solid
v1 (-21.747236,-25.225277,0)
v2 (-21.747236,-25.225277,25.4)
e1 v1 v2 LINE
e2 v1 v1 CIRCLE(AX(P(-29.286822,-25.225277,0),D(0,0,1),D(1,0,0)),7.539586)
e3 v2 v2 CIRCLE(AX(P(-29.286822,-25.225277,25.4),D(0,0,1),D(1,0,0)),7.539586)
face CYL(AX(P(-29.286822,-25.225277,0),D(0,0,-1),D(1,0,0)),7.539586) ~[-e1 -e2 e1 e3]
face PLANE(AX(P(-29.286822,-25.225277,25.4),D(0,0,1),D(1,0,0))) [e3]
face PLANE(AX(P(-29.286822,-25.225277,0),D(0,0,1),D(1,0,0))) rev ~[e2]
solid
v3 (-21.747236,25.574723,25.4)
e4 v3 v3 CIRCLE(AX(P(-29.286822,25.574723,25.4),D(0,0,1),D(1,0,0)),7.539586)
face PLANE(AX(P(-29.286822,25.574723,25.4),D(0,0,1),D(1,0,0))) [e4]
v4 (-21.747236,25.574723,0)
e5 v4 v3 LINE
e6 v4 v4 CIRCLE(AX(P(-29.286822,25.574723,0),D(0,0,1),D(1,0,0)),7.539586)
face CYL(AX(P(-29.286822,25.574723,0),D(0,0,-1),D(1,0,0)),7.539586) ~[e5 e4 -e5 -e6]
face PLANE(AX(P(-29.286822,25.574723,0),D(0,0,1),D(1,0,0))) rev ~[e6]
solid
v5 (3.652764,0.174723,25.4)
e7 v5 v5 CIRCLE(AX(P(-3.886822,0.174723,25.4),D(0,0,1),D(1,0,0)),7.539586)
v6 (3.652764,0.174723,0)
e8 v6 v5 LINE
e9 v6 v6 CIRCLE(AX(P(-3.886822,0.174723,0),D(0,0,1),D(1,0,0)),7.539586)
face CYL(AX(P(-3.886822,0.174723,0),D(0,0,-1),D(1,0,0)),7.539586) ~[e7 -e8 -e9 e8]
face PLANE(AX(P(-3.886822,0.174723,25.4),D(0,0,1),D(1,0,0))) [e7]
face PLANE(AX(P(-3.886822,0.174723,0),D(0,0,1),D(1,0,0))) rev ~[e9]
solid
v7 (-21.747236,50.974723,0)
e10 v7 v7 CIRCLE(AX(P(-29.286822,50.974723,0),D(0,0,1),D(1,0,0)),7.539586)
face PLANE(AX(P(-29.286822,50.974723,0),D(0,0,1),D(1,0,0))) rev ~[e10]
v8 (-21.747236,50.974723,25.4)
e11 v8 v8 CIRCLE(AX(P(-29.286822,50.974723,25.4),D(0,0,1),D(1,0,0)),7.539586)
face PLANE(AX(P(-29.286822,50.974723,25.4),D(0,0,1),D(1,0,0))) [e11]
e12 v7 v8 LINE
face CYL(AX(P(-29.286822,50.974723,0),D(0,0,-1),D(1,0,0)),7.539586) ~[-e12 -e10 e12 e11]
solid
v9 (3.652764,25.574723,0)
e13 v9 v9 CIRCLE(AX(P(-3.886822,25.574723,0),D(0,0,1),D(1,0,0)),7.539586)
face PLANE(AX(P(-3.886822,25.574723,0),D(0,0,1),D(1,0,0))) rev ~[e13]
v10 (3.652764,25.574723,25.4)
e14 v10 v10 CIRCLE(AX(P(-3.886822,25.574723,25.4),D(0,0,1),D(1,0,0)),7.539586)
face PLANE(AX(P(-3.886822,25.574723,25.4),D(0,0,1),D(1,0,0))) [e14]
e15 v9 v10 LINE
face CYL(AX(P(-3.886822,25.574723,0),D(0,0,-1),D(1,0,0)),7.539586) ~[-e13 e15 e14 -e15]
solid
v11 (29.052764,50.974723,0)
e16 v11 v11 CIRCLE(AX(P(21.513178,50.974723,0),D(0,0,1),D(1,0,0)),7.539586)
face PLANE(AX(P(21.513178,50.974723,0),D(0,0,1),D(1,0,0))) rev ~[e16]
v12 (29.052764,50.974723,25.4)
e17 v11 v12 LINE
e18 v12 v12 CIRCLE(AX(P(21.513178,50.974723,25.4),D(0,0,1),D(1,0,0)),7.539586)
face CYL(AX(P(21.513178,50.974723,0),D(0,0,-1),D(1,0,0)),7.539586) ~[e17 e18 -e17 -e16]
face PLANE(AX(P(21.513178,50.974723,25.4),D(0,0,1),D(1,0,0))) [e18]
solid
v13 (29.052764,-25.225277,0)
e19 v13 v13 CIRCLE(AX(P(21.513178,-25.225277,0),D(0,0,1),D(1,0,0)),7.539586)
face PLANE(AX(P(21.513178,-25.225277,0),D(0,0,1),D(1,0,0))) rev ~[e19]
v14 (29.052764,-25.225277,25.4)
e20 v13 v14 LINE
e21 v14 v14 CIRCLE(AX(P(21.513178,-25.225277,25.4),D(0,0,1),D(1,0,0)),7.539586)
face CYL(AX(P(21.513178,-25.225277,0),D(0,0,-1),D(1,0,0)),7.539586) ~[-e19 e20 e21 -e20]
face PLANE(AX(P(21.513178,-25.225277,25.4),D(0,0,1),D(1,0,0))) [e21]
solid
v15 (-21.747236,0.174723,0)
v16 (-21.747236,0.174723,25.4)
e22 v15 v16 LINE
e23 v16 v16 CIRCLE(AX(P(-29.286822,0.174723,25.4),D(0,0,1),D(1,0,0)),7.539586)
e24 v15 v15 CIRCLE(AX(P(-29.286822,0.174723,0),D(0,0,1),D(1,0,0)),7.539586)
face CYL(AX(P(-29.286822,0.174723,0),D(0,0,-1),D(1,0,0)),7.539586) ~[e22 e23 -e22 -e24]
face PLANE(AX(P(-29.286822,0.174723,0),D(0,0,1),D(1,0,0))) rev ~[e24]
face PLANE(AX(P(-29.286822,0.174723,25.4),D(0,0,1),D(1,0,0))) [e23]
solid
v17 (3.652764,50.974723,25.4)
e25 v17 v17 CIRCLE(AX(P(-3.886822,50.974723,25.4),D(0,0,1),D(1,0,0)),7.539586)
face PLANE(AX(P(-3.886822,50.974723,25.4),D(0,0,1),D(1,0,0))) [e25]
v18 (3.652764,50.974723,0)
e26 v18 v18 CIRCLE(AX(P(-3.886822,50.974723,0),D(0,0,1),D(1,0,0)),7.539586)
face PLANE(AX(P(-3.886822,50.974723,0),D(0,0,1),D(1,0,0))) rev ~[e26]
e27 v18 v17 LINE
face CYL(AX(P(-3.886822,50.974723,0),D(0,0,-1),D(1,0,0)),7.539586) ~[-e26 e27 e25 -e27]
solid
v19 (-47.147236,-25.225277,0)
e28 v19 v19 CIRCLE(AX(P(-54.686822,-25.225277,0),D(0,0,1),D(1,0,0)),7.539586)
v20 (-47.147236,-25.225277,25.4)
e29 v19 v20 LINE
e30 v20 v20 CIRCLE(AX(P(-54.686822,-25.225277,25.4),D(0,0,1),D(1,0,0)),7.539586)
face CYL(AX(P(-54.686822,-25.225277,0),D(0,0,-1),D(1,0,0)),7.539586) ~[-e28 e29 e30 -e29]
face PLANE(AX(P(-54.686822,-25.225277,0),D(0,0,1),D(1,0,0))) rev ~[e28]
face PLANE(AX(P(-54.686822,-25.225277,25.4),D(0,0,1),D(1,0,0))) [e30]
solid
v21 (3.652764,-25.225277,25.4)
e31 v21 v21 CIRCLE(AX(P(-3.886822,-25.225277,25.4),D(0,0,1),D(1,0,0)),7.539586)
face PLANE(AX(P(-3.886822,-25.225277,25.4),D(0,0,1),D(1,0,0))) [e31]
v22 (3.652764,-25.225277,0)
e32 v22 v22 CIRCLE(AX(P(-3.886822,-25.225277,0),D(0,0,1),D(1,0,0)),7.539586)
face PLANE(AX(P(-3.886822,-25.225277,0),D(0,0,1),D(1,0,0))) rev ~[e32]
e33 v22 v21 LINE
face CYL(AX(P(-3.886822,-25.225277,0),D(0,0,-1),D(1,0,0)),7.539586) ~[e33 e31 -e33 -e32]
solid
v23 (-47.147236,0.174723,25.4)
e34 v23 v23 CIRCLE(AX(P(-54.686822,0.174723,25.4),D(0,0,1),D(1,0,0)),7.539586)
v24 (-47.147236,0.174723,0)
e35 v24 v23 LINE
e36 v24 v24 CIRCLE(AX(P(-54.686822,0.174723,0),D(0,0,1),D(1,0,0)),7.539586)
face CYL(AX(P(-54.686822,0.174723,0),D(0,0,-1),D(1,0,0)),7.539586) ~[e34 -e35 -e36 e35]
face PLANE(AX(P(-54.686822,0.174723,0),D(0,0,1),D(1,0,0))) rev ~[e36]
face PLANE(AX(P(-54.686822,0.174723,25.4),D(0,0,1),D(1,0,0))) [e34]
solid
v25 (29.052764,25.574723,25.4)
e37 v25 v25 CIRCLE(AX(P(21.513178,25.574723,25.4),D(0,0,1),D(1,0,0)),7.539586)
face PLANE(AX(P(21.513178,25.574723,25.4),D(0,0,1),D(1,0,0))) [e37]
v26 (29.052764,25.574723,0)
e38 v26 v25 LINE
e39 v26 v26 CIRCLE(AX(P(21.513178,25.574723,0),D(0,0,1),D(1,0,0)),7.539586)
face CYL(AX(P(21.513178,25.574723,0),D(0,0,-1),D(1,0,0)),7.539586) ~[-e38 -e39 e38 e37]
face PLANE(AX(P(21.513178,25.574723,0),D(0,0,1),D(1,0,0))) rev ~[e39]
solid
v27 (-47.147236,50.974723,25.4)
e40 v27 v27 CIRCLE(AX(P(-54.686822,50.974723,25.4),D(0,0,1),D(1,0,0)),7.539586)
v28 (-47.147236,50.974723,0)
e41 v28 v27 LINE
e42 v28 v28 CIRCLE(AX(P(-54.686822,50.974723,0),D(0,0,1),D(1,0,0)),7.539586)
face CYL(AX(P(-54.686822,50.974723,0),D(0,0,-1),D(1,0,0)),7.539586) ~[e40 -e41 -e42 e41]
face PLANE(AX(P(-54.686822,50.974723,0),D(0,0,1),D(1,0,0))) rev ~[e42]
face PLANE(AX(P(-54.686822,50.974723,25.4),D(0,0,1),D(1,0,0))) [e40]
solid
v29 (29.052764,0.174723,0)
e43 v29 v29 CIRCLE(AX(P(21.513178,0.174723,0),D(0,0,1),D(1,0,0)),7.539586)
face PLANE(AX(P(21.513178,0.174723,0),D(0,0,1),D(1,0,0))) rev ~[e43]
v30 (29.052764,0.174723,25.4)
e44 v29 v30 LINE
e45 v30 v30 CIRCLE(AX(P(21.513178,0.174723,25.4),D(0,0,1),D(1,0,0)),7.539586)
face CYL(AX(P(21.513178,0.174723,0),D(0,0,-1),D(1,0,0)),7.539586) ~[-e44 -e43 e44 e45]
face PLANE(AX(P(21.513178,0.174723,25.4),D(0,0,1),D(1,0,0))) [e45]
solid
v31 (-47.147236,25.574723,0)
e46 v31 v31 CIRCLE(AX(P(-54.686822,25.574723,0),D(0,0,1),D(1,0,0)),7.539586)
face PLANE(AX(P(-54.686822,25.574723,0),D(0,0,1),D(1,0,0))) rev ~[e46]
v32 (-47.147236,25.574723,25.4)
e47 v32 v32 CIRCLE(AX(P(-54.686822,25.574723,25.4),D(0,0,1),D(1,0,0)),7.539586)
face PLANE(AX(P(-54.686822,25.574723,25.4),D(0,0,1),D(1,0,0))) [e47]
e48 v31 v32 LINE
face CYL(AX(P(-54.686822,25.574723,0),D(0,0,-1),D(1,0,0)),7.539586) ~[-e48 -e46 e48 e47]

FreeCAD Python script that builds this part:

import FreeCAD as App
import Part
import Sketcher

V = App.Vector
Q = App.Units.Quantity

doc = App.newDocument("Part")
body = doc.addObject("PartDesign::Body", "Body")
body.AllowCompound = True

# Sketch on XY plane
sketch1 = body.newObject("Sketcher::SketchObject", "Sketch")
sketch1.AttachmentSupport = (doc.getObject("XY_Plane"), [""])
sketch1.MapMode = "FlatFace"
sketch1.addGeometry([
    Part.Circle(V(22, 51, 0), V(0, 0, 1), 8),  # 0
    Part.Circle(V(22, 26, 0), V(0, 0, 1), 8),  # 1
    Part.Circle(V(22, 0, 0), V(0, 0, 1), 8),  # 2
    Part.Circle(V(22, -25, 0), V(0, 0, 1), 8),  # 3
    Part.Circle(V(-4, -25, 0), V(0, 0, 1), 8),  # 4
    Part.Circle(V(-4, 0, 0), V(0, 0, 1), 8),  # 5
    Part.Circle(V(-4, 26, 0), V(0, 0, 1), 8),  # 6
    Part.Circle(V(-4, 51, 0), V(0, 0, 1), 8),  # 7
    Part.Circle(V(-29, 51, 0), V(0, 0, 1), 8),  # 8
    Part.Circle(V(-29, 26, 0), V(0, 0, 1), 8),  # 9
    Part.Circle(V(-29, 0, 0), V(0, 0, 1), 8),  # 10
    Part.Circle(V(-29, -25, 0), V(0, 0, 1), 8),  # 11
    Part.Circle(V(-55, 0, 0), V(0, 0, 1), 8),  # 12
    Part.Circle(V(-55, 26, 0), V(0, 0, 1), 8),  # 13
    Part.Circle(V(-55, 51, 0), V(0, 0, 1), 8),  # 14
    Part.Circle(V(-55, -25, 0), V(0, 0, 1), 8),  # 15
], False)
sketch1.addConstraint([
    Sketcher.Constraint("Equal", 0, 1),
    Sketcher.Constraint("Equal", 1, 2),
    Sketcher.Constraint("Equal", 2, 3),
    Sketcher.Constraint("Equal", 3, 4),
    Sketcher.Constraint("Equal", 4, 5),
    Sketcher.Constraint("Equal", 5, 6),
    Sketcher.Constraint("Equal", 6, 7),
    Sketcher.Constraint("Equal", 7, 8),
    Sketcher.Constraint("Equal", 8, 9),
    Sketcher.Constraint("Equal", 9, 10),
    Sketcher.Constraint("Equal", 10, 11),
    Sketcher.Constraint("Equal", 11, 12),
    Sketcher.Constraint("Equal", 12, 13),
    Sketcher.Constraint("Equal", 13, 14),
    Sketcher.Constraint("Equal", 14, 15),
    Sketcher.Constraint("Horizontal", 3, 3, 4, 3),
    Sketcher.Constraint("Horizontal", 2, 3, 5, 3),
    Sketcher.Constraint("Horizontal", 1, 3, 6, 3),
    Sketcher.Constraint("Horizontal", 0, 3, 7, 3),
    Sketcher.Constraint("Horizontal", 7, 3, 8, 3),
    Sketcher.Constraint("Horizontal", 6, 3, 9, 3),
    Sketcher.Constraint("Horizontal", 5, 3, 10, 3),
    Sketcher.Constraint("Horizontal", 4, 3, 11, 3),
    Sketcher.Constraint("Horizontal", 10, 3, 12, 3),
    Sketcher.Constraint("Horizontal", 9, 3, 13, 3),
    Sketcher.Constraint("Horizontal", 8, 3, 14, 3),
    Sketcher.Constraint("Horizontal", 11, 3, 15, 3),
    Sketcher.Constraint("Vertical", 0, 3, 1, 3),
    Sketcher.Constraint("Vertical", 1, 3, 2, 3),
    Sketcher.Constraint("Vertical", 2, 3, 3, 3),
    Sketcher.Constraint("Vertical", 4, 3, 5, 3),
    Sketcher.Constraint("Vertical", 5, 3, 6, 3),
    Sketcher.Constraint("Vertical", 6, 3, 7, 3),
    Sketcher.Constraint("Vertical", 8, 3, 9, 3),
    Sketcher.Constraint("Vertical", 9, 3, 10, 3),
    Sketcher.Constraint("Vertical", 10, 3, 11, 3),
    Sketcher.Constraint("Vertical", 12, 3, 13, 3),
    Sketcher.Constraint("Vertical", 13, 3, 14, 3),
    Sketcher.Constraint("Vertical", 14, 3, 15, 3),
    Sketcher.Constraint("DistanceY", 1, 3, 0, 3, Q("1 in")),
    Sketcher.Constraint("DistanceY", 2, 3, 1, 3, Q("1 in")),
    Sketcher.Constraint("DistanceY", 3, 3, 2, 3, Q("1 in")),
    Sketcher.Constraint("DistanceX", 4, 3, 3, 3, Q("1 in")),
    Sketcher.Constraint("DistanceX", 8, 3, 7, 3, Q("1 in")),
    Sketcher.Constraint("DistanceX", 12, 3, 10, 3, Q("1 in")),
    Sketcher.Constraint("Diameter", 0, 15.079172),
    Sketcher.Constraint("DistanceX", -1, 1, 0, 3, 21.513178),
    Sketcher.Constraint("DistanceY", -1, 1, 0, 3, 50.974723),
])
pad1 = body.newObject("PartDesign::Pad", "Pad")
pad1.Profile = sketch1
pad1.Length = Q("1 in")

doc.recompute()
